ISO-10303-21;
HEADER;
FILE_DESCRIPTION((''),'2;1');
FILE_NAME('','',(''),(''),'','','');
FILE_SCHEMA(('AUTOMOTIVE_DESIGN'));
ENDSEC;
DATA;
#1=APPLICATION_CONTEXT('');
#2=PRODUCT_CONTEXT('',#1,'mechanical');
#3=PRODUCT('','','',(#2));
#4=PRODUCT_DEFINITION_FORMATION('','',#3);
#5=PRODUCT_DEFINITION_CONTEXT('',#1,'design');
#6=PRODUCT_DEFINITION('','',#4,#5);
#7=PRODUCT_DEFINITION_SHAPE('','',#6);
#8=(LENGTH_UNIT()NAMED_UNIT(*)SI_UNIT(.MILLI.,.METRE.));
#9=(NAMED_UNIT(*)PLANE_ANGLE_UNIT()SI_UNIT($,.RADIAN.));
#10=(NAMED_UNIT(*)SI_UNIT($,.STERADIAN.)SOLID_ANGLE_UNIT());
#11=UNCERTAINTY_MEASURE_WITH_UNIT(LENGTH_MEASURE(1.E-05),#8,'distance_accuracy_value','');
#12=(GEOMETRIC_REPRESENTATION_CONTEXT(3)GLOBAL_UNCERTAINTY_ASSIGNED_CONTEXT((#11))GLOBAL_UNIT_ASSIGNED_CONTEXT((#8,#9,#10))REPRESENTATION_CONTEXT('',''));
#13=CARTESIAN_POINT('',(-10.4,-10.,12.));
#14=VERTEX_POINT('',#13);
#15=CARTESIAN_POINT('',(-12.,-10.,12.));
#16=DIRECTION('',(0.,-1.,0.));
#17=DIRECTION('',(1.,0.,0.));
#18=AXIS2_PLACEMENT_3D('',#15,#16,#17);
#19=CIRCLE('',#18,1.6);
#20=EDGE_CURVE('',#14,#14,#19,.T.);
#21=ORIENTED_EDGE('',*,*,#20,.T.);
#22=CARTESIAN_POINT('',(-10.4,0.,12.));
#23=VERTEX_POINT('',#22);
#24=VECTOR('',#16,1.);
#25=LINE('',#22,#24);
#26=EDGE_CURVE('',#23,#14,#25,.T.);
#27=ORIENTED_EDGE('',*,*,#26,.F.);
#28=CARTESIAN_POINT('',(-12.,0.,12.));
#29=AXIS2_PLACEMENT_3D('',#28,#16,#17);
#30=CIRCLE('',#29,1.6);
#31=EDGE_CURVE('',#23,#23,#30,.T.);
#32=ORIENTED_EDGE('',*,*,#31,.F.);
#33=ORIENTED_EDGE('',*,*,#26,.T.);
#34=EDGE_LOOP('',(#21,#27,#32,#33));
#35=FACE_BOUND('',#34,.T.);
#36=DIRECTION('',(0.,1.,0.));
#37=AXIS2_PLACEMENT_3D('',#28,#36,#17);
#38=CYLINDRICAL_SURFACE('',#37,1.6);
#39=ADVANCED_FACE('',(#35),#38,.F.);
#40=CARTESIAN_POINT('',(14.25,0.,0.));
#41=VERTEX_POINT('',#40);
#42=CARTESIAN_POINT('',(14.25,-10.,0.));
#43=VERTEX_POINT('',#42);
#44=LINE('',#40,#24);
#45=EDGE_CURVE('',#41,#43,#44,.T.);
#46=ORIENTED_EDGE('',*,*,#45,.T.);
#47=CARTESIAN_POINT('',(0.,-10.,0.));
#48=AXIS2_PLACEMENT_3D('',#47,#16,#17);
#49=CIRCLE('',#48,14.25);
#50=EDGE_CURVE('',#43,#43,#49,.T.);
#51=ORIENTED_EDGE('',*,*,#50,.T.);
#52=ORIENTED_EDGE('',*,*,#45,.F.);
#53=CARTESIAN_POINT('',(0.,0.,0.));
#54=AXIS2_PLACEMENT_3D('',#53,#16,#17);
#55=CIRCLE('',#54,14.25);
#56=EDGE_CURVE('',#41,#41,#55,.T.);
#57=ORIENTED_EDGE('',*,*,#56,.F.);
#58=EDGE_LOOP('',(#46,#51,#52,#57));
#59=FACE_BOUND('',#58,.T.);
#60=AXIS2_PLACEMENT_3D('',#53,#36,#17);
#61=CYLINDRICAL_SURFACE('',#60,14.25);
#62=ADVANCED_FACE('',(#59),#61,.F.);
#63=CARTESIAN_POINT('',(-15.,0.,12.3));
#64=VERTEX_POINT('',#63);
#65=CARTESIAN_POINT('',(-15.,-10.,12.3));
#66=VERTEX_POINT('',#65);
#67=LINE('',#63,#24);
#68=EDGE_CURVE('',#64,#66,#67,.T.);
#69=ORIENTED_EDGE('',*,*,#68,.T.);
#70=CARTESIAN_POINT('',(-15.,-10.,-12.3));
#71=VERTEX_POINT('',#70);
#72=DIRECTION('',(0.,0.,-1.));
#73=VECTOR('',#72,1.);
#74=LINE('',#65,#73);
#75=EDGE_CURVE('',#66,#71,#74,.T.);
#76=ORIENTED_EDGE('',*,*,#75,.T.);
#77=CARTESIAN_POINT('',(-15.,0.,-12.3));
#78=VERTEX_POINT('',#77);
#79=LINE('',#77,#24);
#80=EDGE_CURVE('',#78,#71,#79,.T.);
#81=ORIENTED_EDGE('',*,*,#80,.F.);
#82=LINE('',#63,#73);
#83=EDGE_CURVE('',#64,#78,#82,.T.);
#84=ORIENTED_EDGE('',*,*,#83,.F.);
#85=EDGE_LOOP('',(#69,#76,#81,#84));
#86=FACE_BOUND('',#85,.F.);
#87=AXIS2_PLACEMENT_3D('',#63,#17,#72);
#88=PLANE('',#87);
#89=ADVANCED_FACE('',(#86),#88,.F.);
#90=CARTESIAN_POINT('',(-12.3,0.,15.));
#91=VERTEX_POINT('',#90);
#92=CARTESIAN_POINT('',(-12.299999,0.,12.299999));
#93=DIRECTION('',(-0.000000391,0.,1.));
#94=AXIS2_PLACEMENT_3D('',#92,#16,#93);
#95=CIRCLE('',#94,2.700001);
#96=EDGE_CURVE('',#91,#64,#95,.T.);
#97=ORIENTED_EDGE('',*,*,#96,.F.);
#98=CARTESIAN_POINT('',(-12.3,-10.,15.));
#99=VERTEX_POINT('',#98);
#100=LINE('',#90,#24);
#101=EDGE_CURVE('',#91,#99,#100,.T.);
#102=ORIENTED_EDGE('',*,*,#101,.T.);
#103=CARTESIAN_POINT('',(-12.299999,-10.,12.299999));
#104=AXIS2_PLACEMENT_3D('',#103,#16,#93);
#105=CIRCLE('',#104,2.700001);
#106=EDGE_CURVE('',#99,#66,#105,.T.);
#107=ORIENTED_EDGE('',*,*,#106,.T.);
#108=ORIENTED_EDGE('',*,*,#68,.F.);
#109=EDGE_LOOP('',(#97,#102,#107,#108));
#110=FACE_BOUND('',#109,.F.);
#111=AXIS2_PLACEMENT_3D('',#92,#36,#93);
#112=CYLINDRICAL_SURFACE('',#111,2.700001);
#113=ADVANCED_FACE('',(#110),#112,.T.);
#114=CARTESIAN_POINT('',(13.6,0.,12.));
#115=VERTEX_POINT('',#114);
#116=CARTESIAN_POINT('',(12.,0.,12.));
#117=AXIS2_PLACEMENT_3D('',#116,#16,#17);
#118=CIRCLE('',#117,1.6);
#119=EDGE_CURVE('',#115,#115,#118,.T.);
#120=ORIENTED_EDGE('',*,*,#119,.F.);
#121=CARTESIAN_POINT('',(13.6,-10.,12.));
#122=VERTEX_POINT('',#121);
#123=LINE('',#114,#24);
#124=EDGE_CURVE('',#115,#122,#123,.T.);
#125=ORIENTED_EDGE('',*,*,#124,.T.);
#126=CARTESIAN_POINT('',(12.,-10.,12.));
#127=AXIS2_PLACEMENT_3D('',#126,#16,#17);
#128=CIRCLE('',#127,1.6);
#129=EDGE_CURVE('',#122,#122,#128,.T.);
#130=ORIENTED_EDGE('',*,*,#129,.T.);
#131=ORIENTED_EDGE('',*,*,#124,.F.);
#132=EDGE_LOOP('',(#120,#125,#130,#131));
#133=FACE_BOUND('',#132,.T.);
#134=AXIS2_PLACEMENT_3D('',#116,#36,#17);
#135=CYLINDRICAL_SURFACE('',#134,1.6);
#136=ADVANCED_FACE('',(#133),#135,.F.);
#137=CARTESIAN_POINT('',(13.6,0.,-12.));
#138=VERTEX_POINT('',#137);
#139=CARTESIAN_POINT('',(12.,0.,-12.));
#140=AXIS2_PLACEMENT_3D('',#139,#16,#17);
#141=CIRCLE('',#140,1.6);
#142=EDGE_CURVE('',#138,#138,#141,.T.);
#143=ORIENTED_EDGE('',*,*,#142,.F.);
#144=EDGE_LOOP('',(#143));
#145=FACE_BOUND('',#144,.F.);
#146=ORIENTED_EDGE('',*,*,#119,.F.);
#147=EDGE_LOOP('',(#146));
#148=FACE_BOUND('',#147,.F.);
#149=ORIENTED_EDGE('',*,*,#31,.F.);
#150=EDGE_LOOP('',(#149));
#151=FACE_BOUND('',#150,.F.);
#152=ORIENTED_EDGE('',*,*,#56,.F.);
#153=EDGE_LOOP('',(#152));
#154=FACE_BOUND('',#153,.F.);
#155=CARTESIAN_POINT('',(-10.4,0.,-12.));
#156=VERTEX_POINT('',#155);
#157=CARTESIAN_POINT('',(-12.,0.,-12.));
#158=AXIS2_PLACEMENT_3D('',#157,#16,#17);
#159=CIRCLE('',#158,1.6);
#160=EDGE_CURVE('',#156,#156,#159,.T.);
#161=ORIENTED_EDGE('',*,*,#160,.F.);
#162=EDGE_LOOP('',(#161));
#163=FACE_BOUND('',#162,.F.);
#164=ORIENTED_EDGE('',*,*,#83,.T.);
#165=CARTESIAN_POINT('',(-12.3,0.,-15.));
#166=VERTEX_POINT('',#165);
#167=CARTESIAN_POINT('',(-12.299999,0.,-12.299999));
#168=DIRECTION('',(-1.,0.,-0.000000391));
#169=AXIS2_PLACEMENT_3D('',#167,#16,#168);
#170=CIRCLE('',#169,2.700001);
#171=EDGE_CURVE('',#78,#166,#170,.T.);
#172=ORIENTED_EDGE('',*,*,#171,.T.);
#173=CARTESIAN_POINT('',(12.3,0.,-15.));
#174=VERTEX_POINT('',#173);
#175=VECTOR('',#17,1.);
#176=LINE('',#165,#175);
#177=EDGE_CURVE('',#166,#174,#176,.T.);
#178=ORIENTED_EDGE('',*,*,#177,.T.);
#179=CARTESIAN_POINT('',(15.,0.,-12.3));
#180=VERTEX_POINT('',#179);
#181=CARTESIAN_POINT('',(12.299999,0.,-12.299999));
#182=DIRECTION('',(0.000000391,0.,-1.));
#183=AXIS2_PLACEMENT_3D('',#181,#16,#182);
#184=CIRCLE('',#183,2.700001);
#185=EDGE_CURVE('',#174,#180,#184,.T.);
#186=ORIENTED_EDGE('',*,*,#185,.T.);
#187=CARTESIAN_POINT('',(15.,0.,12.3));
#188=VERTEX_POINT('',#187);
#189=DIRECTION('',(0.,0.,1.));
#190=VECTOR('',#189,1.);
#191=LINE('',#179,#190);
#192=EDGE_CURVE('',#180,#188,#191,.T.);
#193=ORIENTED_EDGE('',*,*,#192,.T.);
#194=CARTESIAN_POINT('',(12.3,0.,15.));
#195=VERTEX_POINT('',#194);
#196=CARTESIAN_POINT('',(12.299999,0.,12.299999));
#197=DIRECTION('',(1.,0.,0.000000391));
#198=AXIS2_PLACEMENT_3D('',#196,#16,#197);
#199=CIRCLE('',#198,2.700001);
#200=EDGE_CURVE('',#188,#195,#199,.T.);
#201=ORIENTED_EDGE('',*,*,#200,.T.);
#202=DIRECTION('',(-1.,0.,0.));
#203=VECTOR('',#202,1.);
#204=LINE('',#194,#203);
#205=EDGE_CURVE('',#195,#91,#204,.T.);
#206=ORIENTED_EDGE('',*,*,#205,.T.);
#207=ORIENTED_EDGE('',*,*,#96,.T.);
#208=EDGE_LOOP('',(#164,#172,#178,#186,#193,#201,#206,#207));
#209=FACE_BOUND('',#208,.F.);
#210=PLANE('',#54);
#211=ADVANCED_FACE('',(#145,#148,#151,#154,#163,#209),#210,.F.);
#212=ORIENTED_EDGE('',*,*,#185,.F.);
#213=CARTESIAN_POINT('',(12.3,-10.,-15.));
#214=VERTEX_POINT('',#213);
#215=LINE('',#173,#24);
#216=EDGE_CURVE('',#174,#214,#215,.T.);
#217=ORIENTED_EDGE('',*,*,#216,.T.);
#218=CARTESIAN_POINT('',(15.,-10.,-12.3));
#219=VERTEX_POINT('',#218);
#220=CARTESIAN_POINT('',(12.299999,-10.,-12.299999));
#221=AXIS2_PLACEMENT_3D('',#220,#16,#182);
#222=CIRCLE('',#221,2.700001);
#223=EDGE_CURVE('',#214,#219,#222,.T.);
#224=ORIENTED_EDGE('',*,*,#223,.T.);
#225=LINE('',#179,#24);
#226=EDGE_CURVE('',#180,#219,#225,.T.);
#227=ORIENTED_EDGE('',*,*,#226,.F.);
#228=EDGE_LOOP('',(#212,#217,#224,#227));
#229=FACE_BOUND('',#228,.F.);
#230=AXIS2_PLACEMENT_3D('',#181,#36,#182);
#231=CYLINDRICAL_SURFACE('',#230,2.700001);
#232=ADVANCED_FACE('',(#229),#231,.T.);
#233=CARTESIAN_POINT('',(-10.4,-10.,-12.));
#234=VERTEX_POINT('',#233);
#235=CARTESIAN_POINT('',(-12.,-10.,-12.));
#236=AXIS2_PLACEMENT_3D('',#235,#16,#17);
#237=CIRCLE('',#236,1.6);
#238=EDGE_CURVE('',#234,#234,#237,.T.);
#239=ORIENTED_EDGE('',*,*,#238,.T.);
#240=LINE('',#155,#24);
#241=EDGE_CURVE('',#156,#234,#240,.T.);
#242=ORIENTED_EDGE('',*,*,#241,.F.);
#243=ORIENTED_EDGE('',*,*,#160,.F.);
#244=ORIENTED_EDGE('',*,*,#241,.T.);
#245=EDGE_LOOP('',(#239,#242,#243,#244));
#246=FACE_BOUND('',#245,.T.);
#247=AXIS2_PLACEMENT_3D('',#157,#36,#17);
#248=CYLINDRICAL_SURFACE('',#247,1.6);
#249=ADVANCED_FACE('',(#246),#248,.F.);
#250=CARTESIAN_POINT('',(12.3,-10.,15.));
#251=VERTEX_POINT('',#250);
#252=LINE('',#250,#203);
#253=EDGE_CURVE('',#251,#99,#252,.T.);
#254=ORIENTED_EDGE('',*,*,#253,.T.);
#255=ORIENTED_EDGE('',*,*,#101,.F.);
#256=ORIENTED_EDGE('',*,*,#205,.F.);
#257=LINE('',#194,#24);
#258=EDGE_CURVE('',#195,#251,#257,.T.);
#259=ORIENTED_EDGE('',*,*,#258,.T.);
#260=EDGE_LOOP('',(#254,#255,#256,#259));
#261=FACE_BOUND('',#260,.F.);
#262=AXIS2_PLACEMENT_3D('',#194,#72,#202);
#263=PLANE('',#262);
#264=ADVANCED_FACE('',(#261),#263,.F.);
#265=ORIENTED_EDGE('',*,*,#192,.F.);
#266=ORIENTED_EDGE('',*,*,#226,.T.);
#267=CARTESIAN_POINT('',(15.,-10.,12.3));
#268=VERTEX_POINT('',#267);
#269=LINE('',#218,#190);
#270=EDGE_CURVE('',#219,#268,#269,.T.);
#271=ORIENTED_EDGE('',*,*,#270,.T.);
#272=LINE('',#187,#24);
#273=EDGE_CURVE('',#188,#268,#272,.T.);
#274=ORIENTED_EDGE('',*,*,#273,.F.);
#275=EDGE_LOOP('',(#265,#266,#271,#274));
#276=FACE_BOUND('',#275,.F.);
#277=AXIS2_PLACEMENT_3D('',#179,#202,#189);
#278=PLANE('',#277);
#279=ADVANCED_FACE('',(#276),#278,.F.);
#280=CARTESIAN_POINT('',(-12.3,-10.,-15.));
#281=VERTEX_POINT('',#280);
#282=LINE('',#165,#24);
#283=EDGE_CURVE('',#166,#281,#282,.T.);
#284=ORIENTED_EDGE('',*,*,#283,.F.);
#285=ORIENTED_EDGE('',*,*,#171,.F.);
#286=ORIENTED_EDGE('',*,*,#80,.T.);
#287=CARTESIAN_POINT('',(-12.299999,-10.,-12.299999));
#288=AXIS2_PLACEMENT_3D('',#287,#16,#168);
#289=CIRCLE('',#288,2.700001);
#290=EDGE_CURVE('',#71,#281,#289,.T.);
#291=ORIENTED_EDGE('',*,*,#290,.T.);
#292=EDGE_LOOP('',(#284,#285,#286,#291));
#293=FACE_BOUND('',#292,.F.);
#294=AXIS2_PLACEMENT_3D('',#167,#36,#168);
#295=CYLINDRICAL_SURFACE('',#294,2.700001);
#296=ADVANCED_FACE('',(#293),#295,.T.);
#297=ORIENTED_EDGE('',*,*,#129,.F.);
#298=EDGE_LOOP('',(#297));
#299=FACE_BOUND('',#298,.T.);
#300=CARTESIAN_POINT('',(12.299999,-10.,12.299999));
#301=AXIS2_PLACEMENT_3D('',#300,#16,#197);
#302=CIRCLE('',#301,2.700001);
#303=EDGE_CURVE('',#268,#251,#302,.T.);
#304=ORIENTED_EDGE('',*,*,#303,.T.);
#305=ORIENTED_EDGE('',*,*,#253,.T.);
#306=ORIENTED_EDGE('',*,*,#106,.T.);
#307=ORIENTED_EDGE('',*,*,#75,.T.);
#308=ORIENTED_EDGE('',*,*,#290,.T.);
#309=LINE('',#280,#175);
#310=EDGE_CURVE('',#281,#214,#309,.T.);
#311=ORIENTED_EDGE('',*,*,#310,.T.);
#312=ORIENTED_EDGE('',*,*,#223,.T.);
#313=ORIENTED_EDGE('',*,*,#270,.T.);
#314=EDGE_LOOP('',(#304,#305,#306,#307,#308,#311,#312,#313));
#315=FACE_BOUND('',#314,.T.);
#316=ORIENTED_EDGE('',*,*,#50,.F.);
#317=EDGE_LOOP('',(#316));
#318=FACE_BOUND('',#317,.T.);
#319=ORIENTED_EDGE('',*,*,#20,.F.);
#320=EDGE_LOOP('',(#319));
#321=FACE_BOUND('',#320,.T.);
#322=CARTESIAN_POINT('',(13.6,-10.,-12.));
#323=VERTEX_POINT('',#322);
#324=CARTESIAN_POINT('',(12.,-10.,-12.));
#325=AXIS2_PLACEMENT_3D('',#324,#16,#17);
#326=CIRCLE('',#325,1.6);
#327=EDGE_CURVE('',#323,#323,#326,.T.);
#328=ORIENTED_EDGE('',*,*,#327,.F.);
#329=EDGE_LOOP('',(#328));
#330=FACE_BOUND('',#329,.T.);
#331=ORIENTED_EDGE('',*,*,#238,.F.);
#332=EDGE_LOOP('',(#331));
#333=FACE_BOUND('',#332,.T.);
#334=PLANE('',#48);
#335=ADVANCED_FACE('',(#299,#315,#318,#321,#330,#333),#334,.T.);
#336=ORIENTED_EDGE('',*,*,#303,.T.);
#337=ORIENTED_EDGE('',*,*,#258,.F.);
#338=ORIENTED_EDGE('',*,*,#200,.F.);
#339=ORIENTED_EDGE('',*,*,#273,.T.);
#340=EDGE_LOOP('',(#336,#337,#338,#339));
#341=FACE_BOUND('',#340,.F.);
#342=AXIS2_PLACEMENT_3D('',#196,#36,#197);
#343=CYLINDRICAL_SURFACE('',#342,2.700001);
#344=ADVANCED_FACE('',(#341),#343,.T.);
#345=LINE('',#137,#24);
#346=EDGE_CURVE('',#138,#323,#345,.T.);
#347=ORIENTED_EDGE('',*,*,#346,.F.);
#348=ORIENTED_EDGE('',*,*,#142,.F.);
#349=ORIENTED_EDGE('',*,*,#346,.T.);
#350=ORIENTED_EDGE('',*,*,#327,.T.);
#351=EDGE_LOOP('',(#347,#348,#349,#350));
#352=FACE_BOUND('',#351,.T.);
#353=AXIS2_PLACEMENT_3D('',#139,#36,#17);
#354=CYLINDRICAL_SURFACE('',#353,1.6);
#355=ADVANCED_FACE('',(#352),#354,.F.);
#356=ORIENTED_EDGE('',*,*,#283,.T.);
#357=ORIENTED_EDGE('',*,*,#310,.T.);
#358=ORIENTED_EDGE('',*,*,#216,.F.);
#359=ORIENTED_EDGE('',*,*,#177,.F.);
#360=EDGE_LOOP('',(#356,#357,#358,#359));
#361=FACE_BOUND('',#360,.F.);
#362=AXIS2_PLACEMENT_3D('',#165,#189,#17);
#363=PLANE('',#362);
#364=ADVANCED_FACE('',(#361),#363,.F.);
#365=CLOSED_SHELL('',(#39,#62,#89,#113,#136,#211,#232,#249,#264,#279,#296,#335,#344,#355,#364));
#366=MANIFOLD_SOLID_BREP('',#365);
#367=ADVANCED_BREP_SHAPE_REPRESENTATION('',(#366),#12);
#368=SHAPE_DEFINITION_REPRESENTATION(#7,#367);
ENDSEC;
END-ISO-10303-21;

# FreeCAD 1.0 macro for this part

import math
import FreeCAD as App
import Part
import Sketcher

V = App.Vector
Q = App.Units.Quantity

doc = App.newDocument("Part")
body = doc.addObject("PartDesign::Body", "Body")

# Sketch on XZ plane
sketch1 = body.newObject("Sketcher::SketchObject", "Sketch")
sketch1.AttachmentSupport = (doc.getObject("XZ_Plane"), [""])
sketch1.MapMode = "FlatFace"
sketch1.addGeometry([
    Part.LineSegment(V(12.3, 15, 0), V(-12.3, 15, 0)),  # 0
    Part.ArcOfCircle(Part.Circle(V(-12.299999, 12.299999, 0), V(0, 0, 1), 2.700001), math.radians(90.000022), math.radians(179.999978)),  # 1
    Part.LineSegment(V(-15, 12.3, 0), V(-15, -12.3, 0)),  # 2
    Part.ArcOfCircle(Part.Circle(V(-12.299999, -12.299999, 0), V(0, 0, 1), 2.700001), math.radians(-179.999978), math.radians(-90.000022)),  # 3
    Part.LineSegment(V(-12.3, -15, 0), V(12.3, -15, 0)),  # 4
    Part.ArcOfCircle(Part.Circle(V(12.299999, -12.299999, 0), V(0, 0, 1), 2.700001), math.radians(-89.999978), math.radians(-0.000022)),  # 5
    Part.LineSegment(V(15, -12.3, 0), V(15, 12.3, 0)),  # 6
    Part.ArcOfCircle(Part.Circle(V(12.299999, 12.299999, 0), V(0, 0, 1), 2.700001), math.radians(0.000022), math.radians(89.999978)),  # 7
    Part.Circle(V(-12, -12, 0), V(0, 0, 1), 1.6),  # 8
    Part.Circle(V(12, -12, 0), V(0, 0, 1), 1.6),  # 9
    Part.Circle(V(-12, 12, 0), V(0, 0, 1), 1.6),  # 10
    Part.Circle(V(0, 0, 0), V(0, 0, 1), 14.25),  # 11
    Part.Circle(V(12, 12, 0), V(0, 0, 1), 1.6),  # 12
], False)
sketch1.addConstraint([
    Sketcher.Constraint("Tangent", 0, 2, 1, 1),
    Sketcher.Constraint("Tangent", 1, 2, 2, 1),
    Sketcher.Constraint("Tangent", 2, 2, 3, 1),
    Sketcher.Constraint("Tangent", 3, 2, 4, 1),
    Sketcher.Constraint("Tangent", 4, 2, 5, 1),
    Sketcher.Constraint("Tangent", 5, 2, 6, 1),
    Sketcher.Constraint("Tangent", 6, 2, 7, 1),
    Sketcher.Constraint("Tangent", 7, 2, 0, 1),
    Sketcher.Constraint("Horizontal", 0),
    Sketcher.Constraint("Vertical", 2),
    Sketcher.Constraint("Horizontal", 4),
    Sketcher.Constraint("Vertical", 6),
    Sketcher.Constraint("Coincident", 11, 3, -1, 1),
    Sketcher.Constraint("Equal", 1, 3),
    Sketcher.Constraint("Equal", 3, 5),
    Sketcher.Constraint("Equal", 5, 7),
    Sketcher.Constraint("Equal", 8, 9),
    Sketcher.Constraint("Equal", 9, 10),
    Sketcher.Constraint("Equal", 10, 12),
    Sketcher.Constraint("Symmetric", 1, 3, 5, 3, -1, 1),
    Sketcher.Constraint("Symmetric", 9, 3, 10, 3, -1, 1),
    Sketcher.Constraint("Symmetric", 8, 3, 12, 3, -1, 1),
    Sketcher.Constraint("Symmetric", 8, 3, 9, 3, -2),
    Sketcher.Constraint("Equal", 4, 2),
    Sketcher.Constraint("Diameter", 8, Q("3.2 mm")),
    Sketcher.Constraint("Diameter", 11, Q("28.5 mm")),
    Sketcher.Constraint("Radius", 1, Q("2.700001 mm")),
    Sketcher.Constraint("DistanceX", 0, 2, 0, 1, Q("24.6 mm")),
    Sketcher.Constraint("DistanceX", 8, 3, -1, 1, Q("12 mm")),
    Sketcher.Constraint("DistanceY", 8, 3, -1, 1, Q("12 mm")),
])
pad1 = body.newObject("PartDesign::Pad", "Pad")
pad1.Profile = sketch1
pad1.Length = 10

doc.recompute()
